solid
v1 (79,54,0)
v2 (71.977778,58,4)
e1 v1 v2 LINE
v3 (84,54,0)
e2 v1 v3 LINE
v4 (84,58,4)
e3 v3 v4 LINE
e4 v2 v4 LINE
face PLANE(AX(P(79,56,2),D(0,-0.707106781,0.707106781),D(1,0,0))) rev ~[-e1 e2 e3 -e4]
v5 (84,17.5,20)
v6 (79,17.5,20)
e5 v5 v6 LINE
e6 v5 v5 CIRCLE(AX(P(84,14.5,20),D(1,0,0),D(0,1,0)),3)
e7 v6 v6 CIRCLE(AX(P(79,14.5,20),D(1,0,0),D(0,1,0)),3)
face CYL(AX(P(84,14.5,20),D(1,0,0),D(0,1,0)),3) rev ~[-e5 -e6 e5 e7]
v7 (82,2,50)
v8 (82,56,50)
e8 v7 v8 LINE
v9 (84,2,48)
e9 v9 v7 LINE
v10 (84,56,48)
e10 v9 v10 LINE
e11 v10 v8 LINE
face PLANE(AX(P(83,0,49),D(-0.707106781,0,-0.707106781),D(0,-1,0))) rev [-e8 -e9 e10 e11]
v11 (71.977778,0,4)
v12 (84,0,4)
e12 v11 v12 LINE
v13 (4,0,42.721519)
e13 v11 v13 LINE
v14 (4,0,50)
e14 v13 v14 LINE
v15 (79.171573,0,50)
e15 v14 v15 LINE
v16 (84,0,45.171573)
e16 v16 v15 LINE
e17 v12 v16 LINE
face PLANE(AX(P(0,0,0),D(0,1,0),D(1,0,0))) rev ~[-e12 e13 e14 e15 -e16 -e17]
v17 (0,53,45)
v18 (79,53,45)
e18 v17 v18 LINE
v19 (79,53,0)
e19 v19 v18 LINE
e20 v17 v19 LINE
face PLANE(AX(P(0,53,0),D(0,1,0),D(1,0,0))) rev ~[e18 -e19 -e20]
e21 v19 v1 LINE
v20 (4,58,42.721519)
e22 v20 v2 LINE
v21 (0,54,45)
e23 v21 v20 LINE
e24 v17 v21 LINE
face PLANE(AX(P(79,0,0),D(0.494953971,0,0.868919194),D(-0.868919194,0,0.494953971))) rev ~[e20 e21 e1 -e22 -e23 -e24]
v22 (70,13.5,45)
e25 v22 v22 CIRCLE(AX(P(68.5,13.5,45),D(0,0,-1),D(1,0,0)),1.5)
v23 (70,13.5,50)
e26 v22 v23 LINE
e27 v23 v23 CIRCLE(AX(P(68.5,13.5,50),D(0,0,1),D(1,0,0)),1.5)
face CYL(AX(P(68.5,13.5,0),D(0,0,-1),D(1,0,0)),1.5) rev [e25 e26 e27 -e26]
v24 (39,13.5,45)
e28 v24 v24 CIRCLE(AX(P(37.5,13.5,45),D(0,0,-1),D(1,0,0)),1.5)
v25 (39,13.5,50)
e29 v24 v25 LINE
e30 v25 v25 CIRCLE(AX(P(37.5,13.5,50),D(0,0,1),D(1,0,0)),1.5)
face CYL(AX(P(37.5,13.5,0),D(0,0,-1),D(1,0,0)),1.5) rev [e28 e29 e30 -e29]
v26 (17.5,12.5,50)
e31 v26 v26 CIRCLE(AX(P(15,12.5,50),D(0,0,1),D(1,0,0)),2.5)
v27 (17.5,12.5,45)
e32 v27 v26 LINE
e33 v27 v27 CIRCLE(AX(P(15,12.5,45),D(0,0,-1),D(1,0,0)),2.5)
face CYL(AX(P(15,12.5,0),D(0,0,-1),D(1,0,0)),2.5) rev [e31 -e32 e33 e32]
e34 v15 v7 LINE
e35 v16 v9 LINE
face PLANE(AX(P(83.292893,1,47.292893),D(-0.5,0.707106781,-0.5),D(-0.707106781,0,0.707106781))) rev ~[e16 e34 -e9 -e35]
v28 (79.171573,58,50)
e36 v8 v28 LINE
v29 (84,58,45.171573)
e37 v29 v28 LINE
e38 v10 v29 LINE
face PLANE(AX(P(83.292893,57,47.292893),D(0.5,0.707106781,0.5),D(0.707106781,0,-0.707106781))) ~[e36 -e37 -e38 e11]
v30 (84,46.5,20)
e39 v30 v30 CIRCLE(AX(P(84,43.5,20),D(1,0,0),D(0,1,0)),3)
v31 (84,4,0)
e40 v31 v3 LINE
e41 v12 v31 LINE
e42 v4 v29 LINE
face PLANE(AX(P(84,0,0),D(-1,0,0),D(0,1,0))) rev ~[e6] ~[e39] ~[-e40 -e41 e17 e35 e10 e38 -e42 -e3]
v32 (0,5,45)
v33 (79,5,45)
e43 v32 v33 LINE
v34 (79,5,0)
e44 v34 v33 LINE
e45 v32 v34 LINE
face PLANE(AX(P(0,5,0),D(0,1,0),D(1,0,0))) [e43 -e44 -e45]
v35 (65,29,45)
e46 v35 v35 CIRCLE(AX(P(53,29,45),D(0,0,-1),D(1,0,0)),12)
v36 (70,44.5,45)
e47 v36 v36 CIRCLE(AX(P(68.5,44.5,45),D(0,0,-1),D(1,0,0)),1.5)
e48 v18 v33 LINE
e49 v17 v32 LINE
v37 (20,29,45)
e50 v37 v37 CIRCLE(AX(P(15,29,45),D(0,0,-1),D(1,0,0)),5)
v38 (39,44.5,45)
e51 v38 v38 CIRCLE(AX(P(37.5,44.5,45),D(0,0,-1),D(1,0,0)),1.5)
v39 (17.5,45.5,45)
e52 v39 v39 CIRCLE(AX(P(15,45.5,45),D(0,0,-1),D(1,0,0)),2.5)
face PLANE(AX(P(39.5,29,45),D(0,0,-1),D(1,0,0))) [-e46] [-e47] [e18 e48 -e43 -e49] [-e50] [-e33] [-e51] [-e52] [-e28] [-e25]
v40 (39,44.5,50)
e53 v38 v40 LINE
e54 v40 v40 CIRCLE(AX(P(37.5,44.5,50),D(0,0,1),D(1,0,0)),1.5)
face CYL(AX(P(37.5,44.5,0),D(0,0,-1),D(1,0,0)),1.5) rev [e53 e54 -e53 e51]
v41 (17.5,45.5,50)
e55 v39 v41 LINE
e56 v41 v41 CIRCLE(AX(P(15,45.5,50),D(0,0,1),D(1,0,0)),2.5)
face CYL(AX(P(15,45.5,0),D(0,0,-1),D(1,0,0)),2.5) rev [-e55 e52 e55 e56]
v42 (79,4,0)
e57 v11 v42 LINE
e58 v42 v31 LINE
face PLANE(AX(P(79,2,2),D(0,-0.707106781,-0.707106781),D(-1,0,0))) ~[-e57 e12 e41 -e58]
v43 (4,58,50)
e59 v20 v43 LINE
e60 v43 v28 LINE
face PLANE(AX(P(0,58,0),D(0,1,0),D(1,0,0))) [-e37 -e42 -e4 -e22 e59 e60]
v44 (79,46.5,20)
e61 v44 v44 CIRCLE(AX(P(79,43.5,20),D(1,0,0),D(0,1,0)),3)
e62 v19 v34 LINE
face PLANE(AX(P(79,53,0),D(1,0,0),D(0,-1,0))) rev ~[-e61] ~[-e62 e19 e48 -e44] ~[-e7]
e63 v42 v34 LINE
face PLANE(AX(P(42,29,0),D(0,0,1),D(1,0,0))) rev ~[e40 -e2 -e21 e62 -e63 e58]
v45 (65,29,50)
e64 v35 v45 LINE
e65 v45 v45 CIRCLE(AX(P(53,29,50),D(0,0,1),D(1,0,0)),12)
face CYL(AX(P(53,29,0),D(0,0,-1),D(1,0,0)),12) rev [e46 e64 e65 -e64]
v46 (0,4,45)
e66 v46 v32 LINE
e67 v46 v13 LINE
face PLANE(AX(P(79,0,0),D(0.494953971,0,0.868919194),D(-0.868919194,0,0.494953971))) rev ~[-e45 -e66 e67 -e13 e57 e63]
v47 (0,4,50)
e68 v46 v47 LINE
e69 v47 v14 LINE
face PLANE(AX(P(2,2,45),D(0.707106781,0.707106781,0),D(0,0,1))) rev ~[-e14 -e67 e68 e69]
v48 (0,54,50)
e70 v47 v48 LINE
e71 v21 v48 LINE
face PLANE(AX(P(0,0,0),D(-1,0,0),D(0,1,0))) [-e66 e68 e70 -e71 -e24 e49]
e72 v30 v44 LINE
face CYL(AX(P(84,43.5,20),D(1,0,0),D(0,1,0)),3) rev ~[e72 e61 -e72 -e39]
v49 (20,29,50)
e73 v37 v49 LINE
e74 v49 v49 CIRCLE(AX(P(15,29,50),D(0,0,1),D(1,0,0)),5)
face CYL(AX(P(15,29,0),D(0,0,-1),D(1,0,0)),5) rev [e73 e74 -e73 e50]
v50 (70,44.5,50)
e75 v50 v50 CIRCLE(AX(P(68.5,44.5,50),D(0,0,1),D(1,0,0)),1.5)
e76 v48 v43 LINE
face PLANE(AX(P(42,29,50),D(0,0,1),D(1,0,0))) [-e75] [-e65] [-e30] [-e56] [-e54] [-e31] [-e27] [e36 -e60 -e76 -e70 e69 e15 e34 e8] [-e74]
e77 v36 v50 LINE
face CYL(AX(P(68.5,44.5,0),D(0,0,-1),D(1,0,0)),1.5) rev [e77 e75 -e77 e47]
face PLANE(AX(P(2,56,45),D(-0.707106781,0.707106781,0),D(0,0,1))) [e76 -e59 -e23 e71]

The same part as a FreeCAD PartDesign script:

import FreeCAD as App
import Part
import Sketcher

V = App.Vector


def edges_at(feature, points):
    """Names of the edges that pass closest to the given points."""
    edges = feature.Shape.Edges
    near = lambda p: min(range(len(edges)), key=lambda i: edges[i].distToShape(Part.Vertex(*p))[0])
    return sorted({f"Edge{near(p) + 1}" for p in points})


def add_polygon(sketch, points):
    """Adds a closed chain of lines whose ends are joined by coincident constraints."""
    first, n = sketch.GeometryCount, len(points)
    for a, b in zip(points, points[1:] + points[:1]):
        sketch.addGeometry(Part.LineSegment(App.Vector(*a, 0), App.Vector(*b, 0)), False)
    for i in range(n):
        sketch.addConstraint(Sketcher.Constraint("Coincident", first + i, 2, first + (i + 1) % n, 1))

doc = App.newDocument("Part")
body = doc.addObject("PartDesign::Body", "Body")

# Sketch on XY plane
sketch1 = body.newObject("Sketcher::SketchObject", "Sketch")
sketch1.AttachmentSupport = (doc.getObject("XY_Plane"), [""])
sketch1.MapMode = "FlatFace"
add_polygon(sketch1, [(0, 58), (0, 0), (84, 0), (84, 58)])  # lines 0-3
sketch1.addGeometry(Part.Circle(V(15, 12.5, 0), V(0, 0, 1), 2.5), False)  # 4
sketch1.addGeometry(Part.Circle(V(37.5, 13.5, 0), V(0, 0, 1), 1.5), False)  # 5
sketch1.addGeometry(Part.Circle(V(68.5, 13.5, 0), V(0, 0, 1), 1.5), False)  # 6
sketch1.addGeometry(Part.Circle(V(15, 29, 0), V(0, 0, 1), 5), False)  # 7
sketch1.addGeometry(Part.Circle(V(15, 45.5, 0), V(0, 0, 1), 2.5), False)  # 8
sketch1.addGeometry(Part.Circle(V(37.5, 44.5, 0), V(0, 0, 1), 1.5), False)  # 9
sketch1.addGeometry(Part.Circle(V(53, 29, 0), V(0, 0, 1), 12), False)  # 10
sketch1.addGeometry(Part.Circle(V(68.5, 44.5, 0), V(0, 0, 1), 1.5), False)  # 11
sketch1.addConstraint([
    Sketcher.Constraint("Vertical", 0),
    Sketcher.Constraint("Horizontal", 1),
    Sketcher.Constraint("Vertical", 2),
    Sketcher.Constraint("Horizontal", 3),
    Sketcher.Constraint("Coincident", 0, 2, -1, 1),
    Sketcher.Constraint("Equal", 5, 6),
    Sketcher.Constraint("Equal", 4, 8),
    Sketcher.Constraint("Equal", 6, 9),
    Sketcher.Constraint("Equal", 9, 11),
    Sketcher.Constraint("Horizontal", 5, 3, 6, 3),
    Sketcher.Constraint("Horizontal", 7, 3, 10, 3),
    Sketcher.Constraint("Horizontal", 9, 3, 11, 3),
    Sketcher.Constraint("Vertical", 4, 3, 7, 3),
    Sketcher.Constraint("Vertical", 7, 3, 8, 3),
    Sketcher.Constraint("Vertical", 5, 3, 9, 3),
    Sketcher.Constraint("Vertical", 6, 3, 11, 3),
    Sketcher.Constraint("Diameter", 4, 5.0),
    Sketcher.Constraint("Diameter", 5, 3.0),
    Sketcher.Constraint("Diameter", 7, 10.0),
    Sketcher.Constraint("Diameter", 10, 24.0),
    Sketcher.Constraint("DistanceX", 1, 1, 1, 2, 84.0),
    Sketcher.Constraint("DistanceY", 0, 2, 0, 1, 58.0),
    Sketcher.Constraint("DistanceX", -1, 1, 4, 3, 15.0),
    Sketcher.Constraint("DistanceY", -1, 1, 7, 3, 29.0),
    Sketcher.Constraint("DistanceX", -1, 1, 10, 3, 53.0),
    Sketcher.Constraint("DistanceY", 4, 3, 5, 3, 1.0),
    Sketcher.Constraint("DistanceX", 5, 3, 6, 3, 31.0),
    Sketcher.Constraint("DistanceY", 4, 3, 8, 3, 33.0),
    Sketcher.Constraint("DistanceY", 9, 3, 8, 3, 1.0),
    Sketcher.Constraint("DistanceY", -1, 1, 4, 3, 12.5),
    Sketcher.Constraint("DistanceX", -1, 1, 5, 3, 37.5),
])
pad1 = body.newObject("PartDesign::Pad", "Pad")
pad1.Profile = sketch1
pad1.Length = 50

# Sketch on XY plane
sketch2 = body.newObject("Sketcher::SketchObject", "Sketch001")
sketch2.AttachmentSupport = (doc.getObject("XY_Plane"), [""])
sketch2.MapMode = "FlatFace"
add_polygon(sketch2, [(0, 5), (0, 53), (79, 53), (79, 5)])  # lines 0-3
sketch2.addConstraint([
    Sketcher.Constraint("Vertical", 0),
    Sketcher.Constraint("Horizontal", 1),
    Sketcher.Constraint("Vertical", 2),
    Sketcher.Constraint("Horizontal", 3),
    Sketcher.Constraint("PointOnObject", 0, 2, -2),
    Sketcher.Constraint("DistanceX", 1, 1, 1, 2, 79.0),
    Sketcher.Constraint("DistanceY", 0, 1, 0, 2, 48.0),
    Sketcher.Constraint("DistanceY", -1, 1, 0, 2, 53.0),
])
pocket1 = body.newObject("PartDesign::Pocket", "Pocket")
pocket1.Profile = sketch2
pocket1.Length = 45
pocket1.Reversed = True

# Sketch on XZ plane
sketch3 = body.newObject("Sketcher::SketchObject", "Sketch002")
sketch3.AttachmentSupport = (doc.getObject("XZ_Plane"), [""])
sketch3.MapMode = "FlatFace"
add_polygon(sketch3, [(0, 45), (0, 0), (79, 0)])  # lines 0-2
sketch3.addConstraint([
    Sketcher.Constraint("Vertical", 0),
    Sketcher.Constraint("Horizontal", 1),
    Sketcher.Constraint("Coincident", 0, 2, -1, 1),
    Sketcher.Constraint("DistanceX", 1, 1, 1, 2, 79.0),
    Sketcher.Constraint("DistanceY", 0, 2, 0, 1, 45.0),
])
pocket2 = body.newObject("PartDesign::Pocket", "Pocket001")
pocket2.Profile = sketch3
pocket2.Type = "ThroughAll"

# Sketch on YZ plane
sketch4 = body.newObject("Sketcher::SketchObject", "Sketch003")
sketch4.AttachmentSupport = (doc.getObject("YZ_Plane"), [""])
sketch4.MapMode = "FlatFace"
sketch4.AttachmentOffset = App.Placement(V(0, 0, 84), App.Rotation())
sketch4.addGeometry([
    Part.Circle(V(14.5, 20, 0), V(0, 0, 1), 3),
    Part.Circle(V(43.5, 20, 0), V(0, 0, 1), 3),
], False)
sketch4.addConstraint([
    Sketcher.Constraint("Equal", 0, 1),
    Sketcher.Constraint("Horizontal", 0, 3, 1, 3),
    Sketcher.Constraint("Diameter", 0, 6.0),
    Sketcher.Constraint("DistanceY", -1, 1, 0, 3, 20.0),
    Sketcher.Constraint("DistanceX", 0, 3, 1, 3, 29.0),
    Sketcher.Constraint("DistanceX", -1, 1, 0, 3, 14.5),
])
pocket3 = body.newObject("PartDesign::Pocket", "Pocket002")
pocket3.Profile = sketch4
pocket3.Type = "ThroughAll"
doc.recompute()

chamfer = body.newObject("PartDesign::Chamfer", "Chamfer")
chamfer.Base = (pocket3, edges_at(pocket3, [(0, 58, 47.5), (0, 0, 47.5)]))
chamfer.Size = 4
doc.recompute()

chamfer2 = body.newObject("PartDesign::Chamfer", "Chamfer001")
chamfer2.Base = (chamfer, edges_at(chamfer, [(81.5, 0, 0), (81.5, 58, 0)]))
chamfer2.Size = 4
doc.recompute()

chamfer3 = body.newObject("PartDesign::Chamfer", "Chamfer002")
chamfer3.Base = (chamfer2, edges_at(chamfer2, [(84, 29, 50)]))
chamfer3.Size = 2
doc.recompute()

chamfer4 = body.newObject("PartDesign::Chamfer", "Chamfer003")
chamfer4.Base = (chamfer3, edges_at(chamfer3, [(83, 0, 49), (83, 58, 49)]))
chamfer4.Size = 2

doc.recompute()
